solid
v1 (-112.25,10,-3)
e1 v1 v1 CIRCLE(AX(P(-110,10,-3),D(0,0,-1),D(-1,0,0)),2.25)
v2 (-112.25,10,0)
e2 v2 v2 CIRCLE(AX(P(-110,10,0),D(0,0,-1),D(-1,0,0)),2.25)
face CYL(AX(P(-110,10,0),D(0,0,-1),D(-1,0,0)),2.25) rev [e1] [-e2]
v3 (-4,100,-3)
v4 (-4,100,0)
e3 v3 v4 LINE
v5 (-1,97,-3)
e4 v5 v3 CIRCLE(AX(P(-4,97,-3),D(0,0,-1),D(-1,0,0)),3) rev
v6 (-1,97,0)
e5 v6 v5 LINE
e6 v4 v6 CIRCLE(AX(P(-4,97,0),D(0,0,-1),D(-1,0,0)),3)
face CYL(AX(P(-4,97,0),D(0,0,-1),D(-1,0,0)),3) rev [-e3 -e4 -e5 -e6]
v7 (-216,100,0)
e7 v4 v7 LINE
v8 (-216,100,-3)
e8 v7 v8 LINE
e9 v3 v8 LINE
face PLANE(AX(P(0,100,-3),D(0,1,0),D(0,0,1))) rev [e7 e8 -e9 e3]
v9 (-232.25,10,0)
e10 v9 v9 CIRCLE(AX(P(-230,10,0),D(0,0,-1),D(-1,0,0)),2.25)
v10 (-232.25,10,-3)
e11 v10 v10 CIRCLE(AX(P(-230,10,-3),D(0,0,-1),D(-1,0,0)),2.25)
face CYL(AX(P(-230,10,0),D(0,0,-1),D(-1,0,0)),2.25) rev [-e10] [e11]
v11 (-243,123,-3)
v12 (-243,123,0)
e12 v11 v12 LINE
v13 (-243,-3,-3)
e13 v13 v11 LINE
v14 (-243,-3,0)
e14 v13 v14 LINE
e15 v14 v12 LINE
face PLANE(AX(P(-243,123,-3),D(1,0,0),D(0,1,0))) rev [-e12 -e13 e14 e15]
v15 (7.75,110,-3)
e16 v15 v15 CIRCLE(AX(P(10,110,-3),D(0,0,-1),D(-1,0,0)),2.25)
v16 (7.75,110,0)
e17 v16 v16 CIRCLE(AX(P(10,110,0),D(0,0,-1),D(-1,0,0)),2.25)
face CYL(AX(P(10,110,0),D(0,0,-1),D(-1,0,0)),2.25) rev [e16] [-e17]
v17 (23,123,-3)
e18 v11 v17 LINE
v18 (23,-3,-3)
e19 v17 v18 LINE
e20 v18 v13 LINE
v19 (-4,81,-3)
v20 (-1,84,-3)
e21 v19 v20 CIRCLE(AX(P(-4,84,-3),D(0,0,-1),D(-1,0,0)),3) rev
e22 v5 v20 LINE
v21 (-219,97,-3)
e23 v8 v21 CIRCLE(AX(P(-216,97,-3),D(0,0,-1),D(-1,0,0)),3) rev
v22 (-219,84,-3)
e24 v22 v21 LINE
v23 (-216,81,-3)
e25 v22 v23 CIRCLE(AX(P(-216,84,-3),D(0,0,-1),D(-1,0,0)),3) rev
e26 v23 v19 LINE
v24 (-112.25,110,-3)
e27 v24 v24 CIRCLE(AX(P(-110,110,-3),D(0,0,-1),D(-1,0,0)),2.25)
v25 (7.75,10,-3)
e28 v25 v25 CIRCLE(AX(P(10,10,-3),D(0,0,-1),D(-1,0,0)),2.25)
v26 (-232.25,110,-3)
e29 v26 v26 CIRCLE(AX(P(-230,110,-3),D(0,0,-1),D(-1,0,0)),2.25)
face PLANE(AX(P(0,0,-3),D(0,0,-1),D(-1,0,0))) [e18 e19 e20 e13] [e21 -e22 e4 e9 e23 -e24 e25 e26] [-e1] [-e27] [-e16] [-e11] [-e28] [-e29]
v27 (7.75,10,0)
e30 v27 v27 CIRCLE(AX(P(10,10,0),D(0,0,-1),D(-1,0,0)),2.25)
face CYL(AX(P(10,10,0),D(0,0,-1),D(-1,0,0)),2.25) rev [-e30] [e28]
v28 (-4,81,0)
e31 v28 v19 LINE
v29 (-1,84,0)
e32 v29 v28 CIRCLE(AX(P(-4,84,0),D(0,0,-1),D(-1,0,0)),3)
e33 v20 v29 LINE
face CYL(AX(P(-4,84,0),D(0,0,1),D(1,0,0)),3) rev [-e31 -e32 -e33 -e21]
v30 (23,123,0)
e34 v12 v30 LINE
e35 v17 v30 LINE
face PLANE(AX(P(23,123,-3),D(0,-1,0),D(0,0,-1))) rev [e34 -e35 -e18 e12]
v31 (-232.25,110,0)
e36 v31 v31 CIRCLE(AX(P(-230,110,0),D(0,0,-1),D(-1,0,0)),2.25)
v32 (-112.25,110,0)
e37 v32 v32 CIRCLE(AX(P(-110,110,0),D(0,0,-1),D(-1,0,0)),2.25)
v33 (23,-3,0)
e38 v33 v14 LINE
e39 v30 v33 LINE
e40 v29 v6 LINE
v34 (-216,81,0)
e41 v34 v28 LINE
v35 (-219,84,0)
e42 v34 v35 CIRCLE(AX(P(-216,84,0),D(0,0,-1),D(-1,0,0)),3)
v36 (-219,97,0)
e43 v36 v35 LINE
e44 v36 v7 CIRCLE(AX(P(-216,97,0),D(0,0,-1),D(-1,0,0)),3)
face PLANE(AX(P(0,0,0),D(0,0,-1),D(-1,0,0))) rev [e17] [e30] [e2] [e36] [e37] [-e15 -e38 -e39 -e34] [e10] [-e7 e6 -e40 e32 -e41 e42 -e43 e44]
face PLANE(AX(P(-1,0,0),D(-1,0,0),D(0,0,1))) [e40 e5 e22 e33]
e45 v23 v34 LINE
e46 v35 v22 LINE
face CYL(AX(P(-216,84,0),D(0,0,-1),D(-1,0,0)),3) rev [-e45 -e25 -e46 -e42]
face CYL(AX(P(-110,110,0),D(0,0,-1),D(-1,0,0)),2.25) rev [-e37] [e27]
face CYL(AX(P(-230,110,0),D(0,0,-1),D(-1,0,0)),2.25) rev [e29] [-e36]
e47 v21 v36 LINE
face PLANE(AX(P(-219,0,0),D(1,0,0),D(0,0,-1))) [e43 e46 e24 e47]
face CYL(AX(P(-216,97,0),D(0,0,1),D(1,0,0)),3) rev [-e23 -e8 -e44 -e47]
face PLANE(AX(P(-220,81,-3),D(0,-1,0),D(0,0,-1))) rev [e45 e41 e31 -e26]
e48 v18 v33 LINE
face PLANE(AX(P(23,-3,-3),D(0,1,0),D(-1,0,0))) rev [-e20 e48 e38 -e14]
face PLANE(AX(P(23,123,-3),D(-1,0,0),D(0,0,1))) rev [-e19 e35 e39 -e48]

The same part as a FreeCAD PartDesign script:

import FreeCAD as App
import Part
import Sketcher
Q = App.Units.Quantity


def edges_at(feature, points):
    """Names of the edges that pass closest to the given points."""
    edges = feature.Shape.Edges
    near = lambda p: min(range(len(edges)), key=lambda i: edges[i].distToShape(Part.Vertex(*p))[0])
    return sorted({f"Edge{near(p) + 1}" for p in points})


def add_polygon(sketch, points):
    """Adds a closed chain of lines whose ends are joined by coincident constraints."""
    first, n = sketch.GeometryCount, len(points)
    for a, b in zip(points, points[1:] + points[:1]):
        sketch.addGeometry(Part.LineSegment(App.Vector(*a, 0), App.Vector(*b, 0)), False)
    for i in range(n):
        sketch.addConstraint(Sketcher.Constraint("Coincident", first + i, 2, first + (i + 1) % n, 1))

doc = App.newDocument("Part")
body = doc.addObject("PartDesign::Body", "Body")

# Sketch on XY plane
sketch1 = body.newObject("Sketcher::SketchObject", "Sketch")
sketch1.AttachmentSupport = (doc.getObject("XY_Plane"), [""])
sketch1.MapMode = "FlatFace"
add_polygon(sketch1, [(23, 123), (23, -3), (-243, -3), (-243, 123)])  # lines 0-3
sketch1.addConstraint(Sketcher.Constraint("Vertical", 0))
sketch1.addConstraint(Sketcher.Constraint("Horizontal", 1))
sketch1.addConstraint(Sketcher.Constraint("Vertical", 2))
sketch1.addConstraint(Sketcher.Constraint("Horizontal", 3))
sketch1.addConstraint(Sketcher.Constraint("DistanceX", 1, 2, 1, 1, Q("266 mm")))
sketch1.addConstraint(Sketcher.Constraint("DistanceY", 0, 2, 0, 1, Q("126 mm")))
sketch1.addConstraint(Sketcher.Constraint("DistanceX", -1, 1, 0, 2, Q("23 mm")))
sketch1.addConstraint(Sketcher.Constraint("DistanceY", 0, 2, -1, 1, Q("3 mm")))
pad1 = body.newObject("PartDesign::Pad", "Pad")
pad1.Profile = sketch1
pad1.Length = 3
pad1.Reversed = True

# Sketch on XY plane
sketch2 = body.newObject("Sketcher::SketchObject", "Sketch001")
sketch2.AttachmentSupport = (doc.getObject("XY_Plane"), [""])
sketch2.MapMode = "FlatFace"
add_polygon(sketch2, [(-220, 100), (-220, 81), (0, 81), (0, 100)])  # lines 0-3
sketch2.addConstraint(Sketcher.Constraint("Vertical", 0))
sketch2.addConstraint(Sketcher.Constraint("Horizontal", 1))
sketch2.addConstraint(Sketcher.Constraint("Vertical", 2))
sketch2.addConstraint(Sketcher.Constraint("Horizontal", 3))
sketch2.addConstraint(Sketcher.Constraint("PointOnObject", 1, 2, -2))
sketch2.addConstraint(Sketcher.Constraint("DistanceX", 1, 1, 1, 2, Q("220 mm")))
sketch2.addConstraint(Sketcher.Constraint("DistanceY", 0, 2, 0, 1, Q("19 mm")))
sketch2.addConstraint(Sketcher.Constraint("DistanceY", -1, 1, 0, 2, Q("81 mm")))
pocket1 = body.newObject("PartDesign::Pocket", "Pocket")
pocket1.Profile = sketch2
pocket1.Type = "ThroughAll"

# Sketch on YZ plane
sketch3 = body.newObject("Sketcher::SketchObject", "Sketch002")
sketch3.AttachmentSupport = (doc.getObject("YZ_Plane"), [""])
sketch3.MapMode = "FlatFace"
add_polygon(sketch3, [(100, -3), (81, -3), (81, 0), (100, 0)])  # lines 0-3
sketch3.addConstraint(Sketcher.Constraint("Horizontal", 0))
sketch3.addConstraint(Sketcher.Constraint("Vertical", 1))
sketch3.addConstraint(Sketcher.Constraint("Horizontal", 2))
sketch3.addConstraint(Sketcher.Constraint("Vertical", 3))
sketch3.addConstraint(Sketcher.Constraint("PointOnObject", 1, 2, -1))
sketch3.addConstraint(Sketcher.Constraint("DistanceX", 0, 2, 0, 1, Q("19 mm")))
sketch3.addConstraint(Sketcher.Constraint("DistanceY", 1, 1, 1, 2, Q("3 mm")))
sketch3.addConstraint(Sketcher.Constraint("DistanceX", -1, 1, 0, 2, Q("81 mm")))
pad2 = body.newObject("PartDesign::Pad", "Pad001")
pad2.Profile = sketch3
pad2.Length = 1
pad2.Reversed = True

# Sketch on YZ plane
sketch4 = body.newObject("Sketcher::SketchObject", "Sketch003")
sketch4.AttachmentSupport = (doc.getObject("YZ_Plane"), [""])
sketch4.MapMode = "FlatFace"
sketch4.AttachmentOffset = App.Placement(App.Vector(0, 0, -220), App.Rotation())
add_polygon(sketch4, [(100, 0), (81, 0), (81, -3), (100, -3)])  # lines 0-3
sketch4.addConstraint(Sketcher.Constraint("Horizontal", 0))
sketch4.addConstraint(Sketcher.Constraint("Vertical", 1))
sketch4.addConstraint(Sketcher.Constraint("Horizontal", 2))
sketch4.addConstraint(Sketcher.Constraint("Vertical", 3))
sketch4.addConstraint(Sketcher.Constraint("PointOnObject", 0, 2, -1))
sketch4.addConstraint(Sketcher.Constraint("DistanceX", 0, 2, 0, 1, Q("19 mm")))
sketch4.addConstraint(Sketcher.Constraint("DistanceY", 1, 2, 1, 1, Q("3 mm")))
sketch4.addConstraint(Sketcher.Constraint("DistanceX", -1, 1, 0, 2, Q("81 mm")))
pad3 = body.newObject("PartDesign::Pad", "Pad002")
pad3.Profile = sketch4
pad3.Length = 1
doc.recompute()

fillet = body.newObject("PartDesign::Fillet", "Fillet")
fillet.Base = (pad3, edges_at(pad3, [
    (-1, 81, -1.5),
    (-1, 100, -1.5),
    (-219, 100, -1.5),
    (-219, 81, -1.5),
]))
fillet.Radius = 3

# Sketch on XY plane
sketch5 = body.newObject("Sketcher::SketchObject", "Sketch004")
sketch5.AttachmentSupport = (doc.getObject("XY_Plane"), [""])
sketch5.MapMode = "FlatFace"
sketch5.AttachmentOffset = App.Placement(App.Vector(0, 0, -3), App.Rotation())
sketch5.addGeometry(Part.Circle(App.Vector(-230, 110, 0), App.Vector(0, 0, 1), 2.2), False)
sketch5.addGeometry(Part.Circle(App.Vector(-110, 110, 0), App.Vector(0, 0, 1), 2.2), False)
sketch5.addGeometry(Part.Circle(App.Vector(10, 110, 0), App.Vector(0, 0, 1), 2.2), False)
sketch5.addGeometry(Part.Circle(App.Vector(10, 10, 0), App.Vector(0, 0, 1), 2.2), False)
sketch5.addGeometry(Part.Circle(App.Vector(-110, 10, 0), App.Vector(0, 0, 1), 2.2), False)
sketch5.addGeometry(Part.Circle(App.Vector(-230, 10, 0), App.Vector(0, 0, 1), 2.2), False)
sketch5.addConstraint(Sketcher.Constraint("Equal", 0, 1))
sketch5.addConstraint(Sketcher.Constraint("Equal", 1, 2))
sketch5.addConstraint(Sketcher.Constraint("Equal", 2, 3))
sketch5.addConstraint(Sketcher.Constraint("Equal", 3, 4))
sketch5.addConstraint(Sketcher.Constraint("Equal", 4, 5))
sketch5.addConstraint(Sketcher.Constraint("Horizontal", 0, 3, 1, 3))
sketch5.addConstraint(Sketcher.Constraint("Horizontal", 1, 3, 2, 3))
sketch5.addConstraint(Sketcher.Constraint("Horizontal", 3, 3, 4, 3))
sketch5.addConstraint(Sketcher.Constraint("Horizontal", 4, 3, 5, 3))
sketch5.addConstraint(Sketcher.Constraint("Vertical", 2, 3, 3, 3))
sketch5.addConstraint(Sketcher.Constraint("Vertical", 1, 3, 4, 3))
sketch5.addConstraint(Sketcher.Constraint("Vertical", 0, 3, 5, 3))
sketch5.addConstraint(Sketcher.Constraint("Diameter", 0, Q("4.5 mm")))
sketch5.addConstraint(Sketcher.Constraint("DistanceX", 0, 3, -1, 1, Q("230 mm")))
sketch5.addConstraint(Sketcher.Constraint("DistanceY", -1, 1, 0, 3, Q("110 mm")))
sketch5.addConstraint(Sketcher.Constraint("DistanceX", 1, 3, -1, 1, Q("110 mm")))
sketch5.addConstraint(Sketcher.Constraint("DistanceX", -1, 1, 2, 3, Q("10 mm")))
sketch5.addConstraint(Sketcher.Constraint("DistanceY", -1, 1, 3, 3, Q("10 mm")))
pocket2 = body.newObject("PartDesign::Pocket", "Pocket001")
pocket2.Profile = sketch5
pocket2.Type = "ThroughAll"
pocket2.Reversed = True

doc.recompute()
